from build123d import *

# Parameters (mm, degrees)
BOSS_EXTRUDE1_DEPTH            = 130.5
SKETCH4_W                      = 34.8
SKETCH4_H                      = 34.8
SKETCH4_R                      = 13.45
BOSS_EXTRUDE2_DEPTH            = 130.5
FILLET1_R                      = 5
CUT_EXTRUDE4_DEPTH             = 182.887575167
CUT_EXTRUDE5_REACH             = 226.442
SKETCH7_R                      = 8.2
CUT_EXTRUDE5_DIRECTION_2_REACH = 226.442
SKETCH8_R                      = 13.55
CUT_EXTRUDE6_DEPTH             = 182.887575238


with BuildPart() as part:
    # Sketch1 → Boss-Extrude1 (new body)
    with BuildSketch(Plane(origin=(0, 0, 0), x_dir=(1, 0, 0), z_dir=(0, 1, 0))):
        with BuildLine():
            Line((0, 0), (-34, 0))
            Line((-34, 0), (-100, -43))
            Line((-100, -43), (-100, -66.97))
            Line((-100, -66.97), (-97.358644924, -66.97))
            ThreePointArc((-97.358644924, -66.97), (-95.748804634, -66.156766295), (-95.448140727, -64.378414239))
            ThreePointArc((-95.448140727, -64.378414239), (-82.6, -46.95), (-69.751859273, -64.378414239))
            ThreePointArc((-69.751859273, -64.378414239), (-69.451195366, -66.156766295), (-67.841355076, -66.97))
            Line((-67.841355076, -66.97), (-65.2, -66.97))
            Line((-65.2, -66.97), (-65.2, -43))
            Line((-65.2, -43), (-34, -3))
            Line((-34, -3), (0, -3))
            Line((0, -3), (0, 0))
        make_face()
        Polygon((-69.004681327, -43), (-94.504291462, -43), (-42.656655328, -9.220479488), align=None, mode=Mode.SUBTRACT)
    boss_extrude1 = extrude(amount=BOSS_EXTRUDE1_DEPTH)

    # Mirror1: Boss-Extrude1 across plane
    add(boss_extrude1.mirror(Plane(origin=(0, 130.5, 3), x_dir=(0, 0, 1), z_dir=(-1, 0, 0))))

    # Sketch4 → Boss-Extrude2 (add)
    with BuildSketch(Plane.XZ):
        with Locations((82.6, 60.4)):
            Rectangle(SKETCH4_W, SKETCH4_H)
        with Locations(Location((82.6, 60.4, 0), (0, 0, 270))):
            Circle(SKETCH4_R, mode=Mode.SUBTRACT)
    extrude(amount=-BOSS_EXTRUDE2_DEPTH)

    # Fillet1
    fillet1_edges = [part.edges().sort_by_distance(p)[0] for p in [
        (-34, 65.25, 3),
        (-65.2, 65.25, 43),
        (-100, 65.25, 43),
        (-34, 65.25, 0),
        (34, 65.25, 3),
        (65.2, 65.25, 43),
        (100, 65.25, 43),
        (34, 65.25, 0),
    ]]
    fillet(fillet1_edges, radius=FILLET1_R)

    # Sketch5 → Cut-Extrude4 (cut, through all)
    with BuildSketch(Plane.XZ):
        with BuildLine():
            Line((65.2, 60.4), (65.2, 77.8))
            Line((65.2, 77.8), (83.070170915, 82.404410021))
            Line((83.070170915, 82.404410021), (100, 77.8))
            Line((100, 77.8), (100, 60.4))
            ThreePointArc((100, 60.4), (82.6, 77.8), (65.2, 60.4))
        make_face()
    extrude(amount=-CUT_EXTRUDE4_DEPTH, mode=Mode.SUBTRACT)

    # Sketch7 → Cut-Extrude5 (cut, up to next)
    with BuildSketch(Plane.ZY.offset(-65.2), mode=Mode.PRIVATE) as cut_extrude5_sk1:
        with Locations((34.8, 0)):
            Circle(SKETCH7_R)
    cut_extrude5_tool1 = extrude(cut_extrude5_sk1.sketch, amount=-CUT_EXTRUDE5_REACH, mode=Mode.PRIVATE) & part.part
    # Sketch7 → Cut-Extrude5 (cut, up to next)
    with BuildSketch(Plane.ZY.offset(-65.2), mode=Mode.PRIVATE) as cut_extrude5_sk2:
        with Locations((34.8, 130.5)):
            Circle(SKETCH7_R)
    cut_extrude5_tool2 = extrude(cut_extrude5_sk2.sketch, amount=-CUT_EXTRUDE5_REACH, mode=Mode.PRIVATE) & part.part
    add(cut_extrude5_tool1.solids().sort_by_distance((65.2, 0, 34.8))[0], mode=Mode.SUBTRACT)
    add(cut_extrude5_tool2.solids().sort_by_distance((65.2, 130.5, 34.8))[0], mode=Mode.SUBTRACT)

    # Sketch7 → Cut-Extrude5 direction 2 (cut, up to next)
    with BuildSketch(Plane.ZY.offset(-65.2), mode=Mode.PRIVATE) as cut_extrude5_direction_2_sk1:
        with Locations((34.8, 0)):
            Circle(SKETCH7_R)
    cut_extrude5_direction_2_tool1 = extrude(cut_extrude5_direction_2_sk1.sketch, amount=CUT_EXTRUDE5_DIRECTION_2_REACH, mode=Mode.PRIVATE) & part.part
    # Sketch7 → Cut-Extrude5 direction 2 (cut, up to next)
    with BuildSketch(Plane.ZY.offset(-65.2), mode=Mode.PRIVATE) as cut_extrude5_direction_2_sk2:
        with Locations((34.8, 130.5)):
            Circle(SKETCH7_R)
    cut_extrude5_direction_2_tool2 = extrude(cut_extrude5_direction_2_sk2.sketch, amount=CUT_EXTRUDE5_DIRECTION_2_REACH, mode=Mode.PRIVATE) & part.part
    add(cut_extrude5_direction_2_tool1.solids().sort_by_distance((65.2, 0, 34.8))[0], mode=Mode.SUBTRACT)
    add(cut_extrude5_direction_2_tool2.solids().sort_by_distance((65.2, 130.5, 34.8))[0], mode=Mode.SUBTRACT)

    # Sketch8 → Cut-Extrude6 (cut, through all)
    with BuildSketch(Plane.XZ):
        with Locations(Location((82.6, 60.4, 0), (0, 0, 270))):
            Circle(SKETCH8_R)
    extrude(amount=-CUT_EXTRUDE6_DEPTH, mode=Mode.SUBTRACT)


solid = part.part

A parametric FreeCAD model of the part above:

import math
import FreeCAD as App
import Part
import Sketcher
Q = App.Units.Quantity


def edges_at(feature, points):
    """Names of the edges that pass closest to the given points."""
    edges = feature.Shape.Edges
    near = lambda p: min(range(len(edges)), key=lambda i: edges[i].distToShape(Part.Vertex(*p))[0])
    return sorted({f"Edge{near(p) + 1}" for p in points})


def add_polygon(sketch, points):
    """Adds a closed chain of lines whose ends are joined by coincident constraints."""
    first, n = sketch.GeometryCount, len(points)
    for a, b in zip(points, points[1:] + points[:1]):
        sketch.addGeometry(Part.LineSegment(App.Vector(*a, 0), App.Vector(*b, 0)), False)
    for i in range(n):
        sketch.addConstraint(Sketcher.Constraint("Coincident", first + i, 2, first + (i + 1) % n, 1))

doc = App.newDocument("Part")
body = doc.addObject("PartDesign::Body", "Body")

# Sketch on XZ plane
sketch1 = body.newObject("Sketcher::SketchObject", "Sketch")
sketch1.AttachmentSupport = (doc.getObject("XZ_Plane"), [""])
sketch1.MapMode = "FlatFace"
sketch1.addGeometry(Part.LineSegment(App.Vector(0, 0, 0), App.Vector(-34, 0, 0)), False)  # 0
sketch1.addGeometry(Part.LineSegment(App.Vector(-34, 0, 0), App.Vector(-100, 43, 0)), False)  # 1
sketch1.addGeometry(Part.LineSegment(App.Vector(-100, 43, 0), App.Vector(-100, 66.97, 0)), False)  # 2
sketch1.addGeometry(Part.LineSegment(App.Vector(-100, 66.97, 0), App.Vector(-97.358645, 66.97, 0)), False)  # 3
sketch1.addGeometry(Part.ArcOfCircle(Part.Circle(App.Vector(-97.358645, 64.97, 0), App.Vector(0, 0, 1), 2), math.radians(-17.205088), math.radians(90)), False)  # 4
sketch1.addGeometry(Part.ArcOfCircle(Part.Circle(App.Vector(-82.6, 60.4, 0), App.Vector(0, 0, 1), 13.45), math.radians(162.794912), math.radians(377.205088)), False)  # 5
sketch1.addGeometry(Part.ArcOfCircle(Part.Circle(App.Vector(-67.841355, 64.97, 0), App.Vector(0, 0, 1), 2), math.radians(90), math.radians(197.205088)), False)  # 6
sketch1.addGeometry(Part.LineSegment(App.Vector(-67.841355, 66.97, 0), App.Vector(-65.2, 66.97, 0)), False)  # 7
sketch1.addGeometry(Part.LineSegment(App.Vector(-65.2, 66.97, 0), App.Vector(-65.2, 43, 0)), False)  # 8
sketch1.addGeometry(Part.LineSegment(App.Vector(-65.2, 43, 0), App.Vector(-34, 3, 0)), False)  # 9
sketch1.addGeometry(Part.LineSegment(App.Vector(-34, 3, 0), App.Vector(0, 3, 0)), False)  # 10
sketch1.addGeometry(Part.LineSegment(App.Vector(0, 3, 0), App.Vector(0, 0, 0)), False)  # 11
add_polygon(sketch1, [(-42.656655, 9.220479), (-69.004681, 43), (-94.504291, 43)])  # lines 12-14
sketch1.addConstraint([
    Sketcher.Constraint("Coincident", 0, 2, 1, 1),
    Sketcher.Constraint("Coincident", 1, 2, 2, 1),
    Sketcher.Constraint("Coincident", 2, 2, 3, 1),
    Sketcher.Constraint("Tangent", 3, 2, 4, 2),
    Sketcher.Constraint("Tangent", 4, 1, 5, 1),
    Sketcher.Constraint("Tangent", 5, 2, 6, 2),
    Sketcher.Constraint("Tangent", 6, 1, 7, 1),
    Sketcher.Constraint("Coincident", 7, 2, 8, 1),
    Sketcher.Constraint("Coincident", 8, 2, 9, 1),
    Sketcher.Constraint("Coincident", 9, 2, 10, 1),
    Sketcher.Constraint("Coincident", 10, 2, 11, 1),
    Sketcher.Constraint("Coincident", 11, 2, 0, 1),
    Sketcher.Constraint("Horizontal", 0),
    Sketcher.Constraint("Vertical", 2),
    Sketcher.Constraint("Horizontal", 3),
    Sketcher.Constraint("Horizontal", 7),
    Sketcher.Constraint("Vertical", 8),
    Sketcher.Constraint("Horizontal", 10),
    Sketcher.Constraint("Vertical", 11),
    Sketcher.Constraint("Horizontal", 13),
    Sketcher.Constraint("Coincident", 11, 2, -1, 1),
    Sketcher.Constraint("Equal", 4, 6),
    Sketcher.Constraint("Parallel", 9, 12),
    Sketcher.Constraint("Parallel", 1, 14),
    Sketcher.Constraint("Horizontal", 4, 3, 6, 3),
    Sketcher.Constraint("Horizontal", 1, 2, 8, 2),
    Sketcher.Constraint("Horizontal", 8, 2, 12, 2),
    Sketcher.Constraint("Vertical", 0, 2, 9, 2),
    Sketcher.Constraint("Equal", 3, 7),
    Sketcher.Constraint("Radius", 4, Q("2 mm")),
    Sketcher.Constraint("DistanceX", 0, 2, 0, 1, Q("34 mm")),
    Sketcher.Constraint("DistanceY", 11, 2, 11, 1, Q("3 mm")),
    Sketcher.Constraint("Radius", 5, Q("13.45 mm")),
    Sketcher.Constraint("DistanceX", 1, 2, -1, 1, Q("100 mm")),
    Sketcher.Constraint("DistanceY", -1, 1, 1, 2, Q("43 mm")),
    Sketcher.Constraint("DistanceY", 2, 1, 2, 2, Q("23.97 mm")),
    Sketcher.Constraint("DistanceX", 5, 3, -1, 1, Q("82.6 mm")),
    Sketcher.Constraint("DistanceY", -1, 1, 5, 3, Q("60.4 mm")),
    Sketcher.Constraint("Distance", 14, Q("61.8808 mm")),
    Sketcher.Constraint("DistanceX", 12, 2, -1, 1, Q("69.004681 mm")),
])
pad1 = body.newObject("PartDesign::Pad", "Pad")
pad1.Profile = sketch1
pad1.Length = 130.5
pad1.Reversed = True
doc.recompute()

mirrored = body.newObject("PartDesign::Mirrored", "Mirrored")
mirrored.Originals = [pad1]
mirrored.MirrorPlane = (doc.getObject("YZ_Plane"), [""])
body.Tip = mirrored

# Sketch on XZ plane
sketch2 = body.newObject("Sketcher::SketchObject", "Sketch001")
sketch2.AttachmentSupport = (doc.getObject("XZ_Plane"), [""])
sketch2.MapMode = "FlatFace"
add_polygon(sketch2, [(65.2, 77.8), (65.2, 43), (100, 43), (100, 77.8)])  # lines 0-3
sketch2.addGeometry(Part.Circle(App.Vector(82.6, 60.4, 0), App.Vector(0, 0, 1), 13.45), False)  # 4
sketch2.addConstraint([
    Sketcher.Constraint("Vertical", 0),
    Sketcher.Constraint("Horizontal", 1),
    Sketcher.Constraint("Vertical", 2),
    Sketcher.Constraint("Horizontal", 3),
    Sketcher.Constraint("Equal", 3, 0),
    Sketcher.Constraint("Diameter", 4, Q("26.9 mm")),
    Sketcher.Constraint("DistanceX", 1, 1, 1, 2, Q("34.8 mm")),
    Sketcher.Constraint("DistanceY", -1, 1, 0, 2, Q("43 mm")),
    Sketcher.Constraint("DistanceX", -1, 1, 1, 2, Q("100 mm")),
    Sketcher.Constraint("DistanceX", -1, 1, 4, 3, Q("82.6 mm")),
    Sketcher.Constraint("DistanceY", -1, 1, 4, 3, Q("60.4 mm")),
])
pad2 = body.newObject("PartDesign::Pad", "Pad001")
pad2.Profile = sketch2
pad2.Length = 130.5
pad2.Reversed = True
doc.recompute()

fillet = body.newObject("PartDesign::Fillet", "Fillet")
fillet.Base = (pad2, edges_at(pad2, [
    (-34, 65.25, 3),
    (-65.2, 65.25, 43),
    (-100, 65.25, 43),
    (-34, 65.25, 0),
    (34, 65.25, 3),
    (65.2, 65.25, 43),
    (100, 65.25, 43),
    (34, 65.25, 0),
]))
fillet.Radius = 5

# Sketch on XZ plane
sketch3 = body.newObject("Sketcher::SketchObject", "Sketch002")
sketch3.AttachmentSupport = (doc.getObject("XZ_Plane"), [""])
sketch3.MapMode = "FlatFace"
sketch3.addGeometry([
    Part.LineSegment(App.Vector(65.2, 77.8, 0), App.Vector(65.2, 60.4, 0)),  # 0
    Part.ArcOfCircle(Part.Circle(App.Vector(82.6, 60.4, 0), App.Vector(0, 0, 1), 17.4), math.radians(0), math.radians(180)),  # 1
    Part.LineSegment(App.Vector(100, 60.4, 0), App.Vector(100, 77.8, 0)),  # 2
    Part.LineSegment(App.Vector(100, 77.8, 0), App.Vector(83.070171, 82.40441, 0)),  # 3
    Part.LineSegment(App.Vector(83.070171, 82.40441, 0), App.Vector(65.2, 77.8, 0)),  # 4
], False)
sketch3.addConstraint([
    Sketcher.Constraint("Tangent", 0, 2, 1, 2),
    Sketcher.Constraint("Tangent", 1, 1, 2, 1),
    Sketcher.Constraint("Coincident", 2, 2, 3, 1),
    Sketcher.Constraint("Coincident", 3, 2, 4, 1),
    Sketcher.Constraint("Coincident", 4, 2, 0, 1),
    Sketcher.Constraint("Vertical", 0),
    Sketcher.Constraint("Vertical", 2),
    Sketcher.Constraint("Horizontal", 2, 2, 4, 2),
    Sketcher.Constraint("Radius", 1, Q("17.4 mm")),
    Sketcher.Constraint("DistanceY", 0, 2, 0, 1, Q("17.4 mm")),
    Sketcher.Constraint("DistanceX", -1, 1, 1, 1, Q("100 mm")),
    Sketcher.Constraint("DistanceY", -1, 1, 1, 3, Q("60.4 mm")),
    Sketcher.Constraint("Distance", 3, Q("17.544791 mm")),
    Sketcher.Constraint("DistanceX", -1, 1, 3, 2, Q("83.070171 mm")),
])
pocket1 = body.newObject("PartDesign::Pocket", "Pocket")
pocket1.Profile = sketch3
pocket1.Type = "ThroughAll"

# Sketch on YZ plane
sketch4 = body.newObject("Sketcher::SketchObject", "Sketch003")
sketch4.AttachmentSupport = (doc.getObject("YZ_Plane"), [""])
sketch4.MapMode = "FlatFace"
sketch4.AttachmentOffset = App.Placement(App.Vector(0, 0, 65.2), App.Rotation())
sketch4.addGeometry(Part.Circle(App.Vector(0, 34.8, 0), App.Vector(0, 0, 1), 8.2), False)
sketch4.addConstraint([
    Sketcher.Constraint("PointOnObject", 0, 3, -2),
    Sketcher.Constraint("Diameter", 0, Q("16.4 mm")),
    Sketcher.Constraint("DistanceY", -1, 1, 0, 3, Q("34.8 mm")),
])
pocket2 = body.newObject("PartDesign::Pocket", "Pocket001")
pocket2.Profile = sketch4
pocket2.Type = "UpToFirst"
pocket2.Reversed = True

# Sketch on YZ plane
sketch5 = body.newObject("Sketcher::SketchObject", "Sketch004")
sketch5.AttachmentSupport = (doc.getObject("YZ_Plane"), [""])
sketch5.MapMode = "FlatFace"
sketch5.AttachmentOffset = App.Placement(App.Vector(0, 0, 65.2), App.Rotation())
sketch5.addGeometry(Part.Circle(App.Vector(130.5, 34.8, 0), App.Vector(0, 0, 1), 8.2), False)
sketch5.addConstraint([
    Sketcher.Constraint("Diameter", 0, Q("16.4 mm")),
    Sketcher.Constraint("DistanceX", -1, 1, 0, 3, Q("130.5 mm")),
    Sketcher.Constraint("DistanceY", -1, 1, 0, 3, Q("34.8 mm")),
])
pocket3 = body.newObject("PartDesign::Pocket", "Pocket002")
pocket3.Profile = sketch5
pocket3.Type = "UpToFirst"
pocket3.Reversed = True

# Sketch on YZ plane
sketch6 = body.newObject("Sketcher::SketchObject", "Sketch005")
sketch6.AttachmentSupport = (doc.getObject("YZ_Plane"), [""])
sketch6.MapMode = "FlatFace"
sketch6.AttachmentOffset = App.Placement(App.Vector(0, 0, 65.2), App.Rotation())
sketch6.addGeometry(Part.Circle(App.Vector(0, 34.8, 0), App.Vector(0, 0, 1), 8.2), False)
sketch6.addConstraint([
    Sketcher.Constraint("PointOnObject", 0, 3, -2),
    Sketcher.Constraint("Diameter", 0, Q("16.4 mm")),
    Sketcher.Constraint("DistanceY", -1, 1, 0, 3, Q("34.8 mm")),
])
pocket4 = body.newObject("PartDesign::Pocket", "Pocket003")
pocket4.Profile = sketch6
pocket4.Length = 12.792

# Sketch on YZ plane
sketch7 = body.newObject("Sketcher::SketchObject", "Sketch006")
sketch7.AttachmentSupport = (doc.getObject("YZ_Plane"), [""])
sketch7.MapMode = "FlatFace"
sketch7.AttachmentOffset = App.Placement(App.Vector(0, 0, 65.2), App.Rotation())
sketch7.addGeometry(Part.Circle(App.Vector(130.5, 34.8, 0), App.Vector(0, 0, 1), 8.2), False)
sketch7.addConstraint([
    Sketcher.Constraint("Diameter", 0, Q("16.4 mm")),
    Sketcher.Constraint("DistanceX", -1, 1, 0, 3, Q("130.5 mm")),
    Sketcher.Constraint("DistanceY", -1, 1, 0, 3, Q("34.8 mm")),
])
pocket5 = body.newObject("PartDesign::Pocket", "Pocket004")
pocket5.Profile = sketch7
pocket5.Length = 12.792

# Sketch on XZ plane
sketch8 = body.newObject("Sketcher::SketchObject", "Sketch007")
sketch8.AttachmentSupport = (doc.getObject("XZ_Plane"), [""])
sketch8.MapMode = "FlatFace"
sketch8.addGeometry(Part.Circle(App.Vector(82.6, 60.4, 0), App.Vector(0, 0, 1), 13.55), False)
sketch8.addConstraint([
    Sketcher.Constraint("Diameter", 0, Q("27.1 mm")),
    Sketcher.Constraint("DistanceX", -1, 1, 0, 3, Q("82.6 mm")),
    Sketcher.Constraint("DistanceY", -1, 1, 0, 3, Q("60.4 mm")),
])
pocket6 = body.newObject("PartDesign::Pocket", "Pocket005")
pocket6.Profile = sketch8
pocket6.Type = "ThroughAll"

doc.recompute()
